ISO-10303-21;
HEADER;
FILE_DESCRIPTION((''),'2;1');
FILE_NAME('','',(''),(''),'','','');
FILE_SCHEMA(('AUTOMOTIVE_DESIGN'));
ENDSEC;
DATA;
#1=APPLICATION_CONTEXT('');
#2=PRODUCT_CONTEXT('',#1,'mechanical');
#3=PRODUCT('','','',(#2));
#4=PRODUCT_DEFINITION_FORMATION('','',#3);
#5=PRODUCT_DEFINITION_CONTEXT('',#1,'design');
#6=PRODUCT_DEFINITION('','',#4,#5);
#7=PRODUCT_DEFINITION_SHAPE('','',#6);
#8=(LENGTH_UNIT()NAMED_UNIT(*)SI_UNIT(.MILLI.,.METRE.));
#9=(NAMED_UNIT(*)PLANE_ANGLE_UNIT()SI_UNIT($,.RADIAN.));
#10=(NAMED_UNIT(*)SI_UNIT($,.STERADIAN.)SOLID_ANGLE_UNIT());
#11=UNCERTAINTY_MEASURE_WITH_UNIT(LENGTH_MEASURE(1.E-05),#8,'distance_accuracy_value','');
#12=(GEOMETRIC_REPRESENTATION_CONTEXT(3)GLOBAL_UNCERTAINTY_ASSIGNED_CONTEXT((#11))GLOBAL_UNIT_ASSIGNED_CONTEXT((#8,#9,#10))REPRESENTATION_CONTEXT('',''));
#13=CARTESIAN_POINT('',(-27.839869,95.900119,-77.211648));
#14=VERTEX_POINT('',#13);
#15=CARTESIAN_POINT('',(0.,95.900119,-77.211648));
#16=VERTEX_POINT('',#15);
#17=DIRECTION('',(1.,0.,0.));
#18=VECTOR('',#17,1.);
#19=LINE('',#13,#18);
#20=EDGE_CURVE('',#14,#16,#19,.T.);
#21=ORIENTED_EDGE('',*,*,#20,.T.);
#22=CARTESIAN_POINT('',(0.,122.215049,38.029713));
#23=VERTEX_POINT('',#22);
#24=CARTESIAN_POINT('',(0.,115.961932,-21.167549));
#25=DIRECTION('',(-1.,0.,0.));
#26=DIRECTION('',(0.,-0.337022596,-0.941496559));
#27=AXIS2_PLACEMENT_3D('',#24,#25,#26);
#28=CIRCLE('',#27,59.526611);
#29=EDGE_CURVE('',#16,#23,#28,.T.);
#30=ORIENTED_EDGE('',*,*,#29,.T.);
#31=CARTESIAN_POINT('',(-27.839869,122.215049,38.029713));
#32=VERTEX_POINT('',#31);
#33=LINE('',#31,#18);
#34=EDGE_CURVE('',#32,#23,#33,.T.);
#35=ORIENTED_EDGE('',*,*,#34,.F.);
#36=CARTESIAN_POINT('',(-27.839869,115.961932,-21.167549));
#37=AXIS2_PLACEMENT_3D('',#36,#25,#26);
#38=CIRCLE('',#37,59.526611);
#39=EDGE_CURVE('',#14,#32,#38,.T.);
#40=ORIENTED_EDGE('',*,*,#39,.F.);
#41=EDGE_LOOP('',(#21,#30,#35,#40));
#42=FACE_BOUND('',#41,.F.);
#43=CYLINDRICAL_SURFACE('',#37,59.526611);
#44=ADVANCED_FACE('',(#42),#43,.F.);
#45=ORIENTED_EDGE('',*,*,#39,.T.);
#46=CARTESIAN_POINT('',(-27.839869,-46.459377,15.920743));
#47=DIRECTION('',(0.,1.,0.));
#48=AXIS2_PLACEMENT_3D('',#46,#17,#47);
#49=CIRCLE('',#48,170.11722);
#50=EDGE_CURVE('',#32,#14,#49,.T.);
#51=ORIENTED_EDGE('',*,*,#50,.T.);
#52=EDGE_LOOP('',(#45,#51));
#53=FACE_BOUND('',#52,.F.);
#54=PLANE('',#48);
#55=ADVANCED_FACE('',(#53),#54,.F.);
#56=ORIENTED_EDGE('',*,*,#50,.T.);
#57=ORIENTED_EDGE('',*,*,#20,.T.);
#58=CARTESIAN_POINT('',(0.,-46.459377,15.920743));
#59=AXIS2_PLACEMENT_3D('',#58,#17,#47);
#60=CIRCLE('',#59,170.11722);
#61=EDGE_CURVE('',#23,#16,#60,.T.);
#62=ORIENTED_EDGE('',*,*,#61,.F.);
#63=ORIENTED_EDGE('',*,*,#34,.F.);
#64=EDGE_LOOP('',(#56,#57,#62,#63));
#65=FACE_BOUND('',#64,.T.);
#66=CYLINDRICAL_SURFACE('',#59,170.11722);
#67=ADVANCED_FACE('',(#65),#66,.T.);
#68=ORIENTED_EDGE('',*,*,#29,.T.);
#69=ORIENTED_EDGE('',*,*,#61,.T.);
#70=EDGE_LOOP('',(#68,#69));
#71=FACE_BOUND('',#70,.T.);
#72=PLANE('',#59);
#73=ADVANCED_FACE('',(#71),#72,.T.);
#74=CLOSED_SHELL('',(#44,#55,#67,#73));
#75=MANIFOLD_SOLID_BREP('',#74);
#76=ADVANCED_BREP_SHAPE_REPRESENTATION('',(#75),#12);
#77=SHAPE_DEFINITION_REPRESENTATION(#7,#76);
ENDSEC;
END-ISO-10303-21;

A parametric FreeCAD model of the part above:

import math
import FreeCAD as App
import Part
import Sketcher

doc = App.newDocument("Part")
params = doc.addObject("Spreadsheet::Sheet", "Params")
for row, (alias, value) in enumerate([
    ("pad1_length", "27.839869 mm"),
    ("pocket1_length", "74.2204 mm"),
], start=1):
    params.set(f"A{row}", alias)
    params.set(f"B{row}", "=" + value)
    params.setAlias(f"B{row}", alias)

body = doc.addObject("PartDesign::Body", "Body")

# Sketch on YZ plane
sketch1 = doc.addObject("Sketcher::SketchObject", "Sketch")
body.addObject(sketch1)
sketch1.AttachmentSupport = (doc.YZ_Plane, [""])
sketch1.MapMode = "FlatFace"
sketch1.addGeometry(Part.Circle(App.Vector(-46, 16, 0), App.Vector(0, 0, 1), 170), False)
sketch1.addConstraint(Sketcher.Constraint("Diameter", 0, 340.23444))
sketch1.addConstraint(Sketcher.Constraint("DistanceX", 0, 3, -1, 1, 46.459377))
sketch1.addConstraint(Sketcher.Constraint("DistanceY", -1, 1, 0, 3, 15.920743))
pad1 = doc.addObject("PartDesign::Pad", "Pad")
body.addObject(pad1)
pad1.Profile = sketch1
pad1.setExpression("Length", "Params.pad1_length")
pad1.Reversed = True

# Sketch on YZ plane
sketch2 = doc.addObject("Sketcher::SketchObject", "Sketch001")
body.addObject(sketch2)
sketch2.AttachmentSupport = (doc.YZ_Plane, [""])
sketch2.MapMode = "FlatFace"
sketch2.AttachmentOffset = App.Placement(App.Vector(0, 0, -27.839869), App.Rotation())
sketch2.addGeometry(Part.ArcOfCircle(Part.Circle(App.Vector(-46, 16, 0), App.Vector(0, 0, 1), 170), math.radians(-33), math.radians(7)), False)
sketch2.addGeometry(Part.ArcOfCircle(Part.Circle(App.Vector(116, -21, 0), App.Vector(0, 0, 1), 60), math.radians(84), math.radians(250)), False)
sketch2.addConstraint(Sketcher.Constraint("Coincident", 0, 1, 1, 2))
sketch2.addConstraint(Sketcher.Constraint("Coincident", 1, 1, 0, 2))
sketch2.addConstraint(Sketcher.Constraint("Radius", 0, 170.11722))
sketch2.addConstraint(Sketcher.Constraint("Radius", 1, 59.526611))
sketch2.addConstraint(Sketcher.Constraint("DistanceY", 0, 1, 1, 3, 56.044099))
sketch2.addConstraint(Sketcher.Constraint("DistanceY", 1, 3, -1, 1, 21.167549))
sketch2.addConstraint(Sketcher.Constraint("DistanceX", -1, 1, 0, 1, 95.900119))
sketch2.addConstraint(Sketcher.Constraint("DistanceX", -1, 1, 1, 1, 122.215049))
pocket1 = doc.addObject("PartDesign::Pocket", "Pocket")
body.addObject(pocket1)
pocket1.Profile = sketch2
pocket1.setExpression("Length", "Params.pocket1_length")
pocket1.Reversed = True

doc.recompute()
